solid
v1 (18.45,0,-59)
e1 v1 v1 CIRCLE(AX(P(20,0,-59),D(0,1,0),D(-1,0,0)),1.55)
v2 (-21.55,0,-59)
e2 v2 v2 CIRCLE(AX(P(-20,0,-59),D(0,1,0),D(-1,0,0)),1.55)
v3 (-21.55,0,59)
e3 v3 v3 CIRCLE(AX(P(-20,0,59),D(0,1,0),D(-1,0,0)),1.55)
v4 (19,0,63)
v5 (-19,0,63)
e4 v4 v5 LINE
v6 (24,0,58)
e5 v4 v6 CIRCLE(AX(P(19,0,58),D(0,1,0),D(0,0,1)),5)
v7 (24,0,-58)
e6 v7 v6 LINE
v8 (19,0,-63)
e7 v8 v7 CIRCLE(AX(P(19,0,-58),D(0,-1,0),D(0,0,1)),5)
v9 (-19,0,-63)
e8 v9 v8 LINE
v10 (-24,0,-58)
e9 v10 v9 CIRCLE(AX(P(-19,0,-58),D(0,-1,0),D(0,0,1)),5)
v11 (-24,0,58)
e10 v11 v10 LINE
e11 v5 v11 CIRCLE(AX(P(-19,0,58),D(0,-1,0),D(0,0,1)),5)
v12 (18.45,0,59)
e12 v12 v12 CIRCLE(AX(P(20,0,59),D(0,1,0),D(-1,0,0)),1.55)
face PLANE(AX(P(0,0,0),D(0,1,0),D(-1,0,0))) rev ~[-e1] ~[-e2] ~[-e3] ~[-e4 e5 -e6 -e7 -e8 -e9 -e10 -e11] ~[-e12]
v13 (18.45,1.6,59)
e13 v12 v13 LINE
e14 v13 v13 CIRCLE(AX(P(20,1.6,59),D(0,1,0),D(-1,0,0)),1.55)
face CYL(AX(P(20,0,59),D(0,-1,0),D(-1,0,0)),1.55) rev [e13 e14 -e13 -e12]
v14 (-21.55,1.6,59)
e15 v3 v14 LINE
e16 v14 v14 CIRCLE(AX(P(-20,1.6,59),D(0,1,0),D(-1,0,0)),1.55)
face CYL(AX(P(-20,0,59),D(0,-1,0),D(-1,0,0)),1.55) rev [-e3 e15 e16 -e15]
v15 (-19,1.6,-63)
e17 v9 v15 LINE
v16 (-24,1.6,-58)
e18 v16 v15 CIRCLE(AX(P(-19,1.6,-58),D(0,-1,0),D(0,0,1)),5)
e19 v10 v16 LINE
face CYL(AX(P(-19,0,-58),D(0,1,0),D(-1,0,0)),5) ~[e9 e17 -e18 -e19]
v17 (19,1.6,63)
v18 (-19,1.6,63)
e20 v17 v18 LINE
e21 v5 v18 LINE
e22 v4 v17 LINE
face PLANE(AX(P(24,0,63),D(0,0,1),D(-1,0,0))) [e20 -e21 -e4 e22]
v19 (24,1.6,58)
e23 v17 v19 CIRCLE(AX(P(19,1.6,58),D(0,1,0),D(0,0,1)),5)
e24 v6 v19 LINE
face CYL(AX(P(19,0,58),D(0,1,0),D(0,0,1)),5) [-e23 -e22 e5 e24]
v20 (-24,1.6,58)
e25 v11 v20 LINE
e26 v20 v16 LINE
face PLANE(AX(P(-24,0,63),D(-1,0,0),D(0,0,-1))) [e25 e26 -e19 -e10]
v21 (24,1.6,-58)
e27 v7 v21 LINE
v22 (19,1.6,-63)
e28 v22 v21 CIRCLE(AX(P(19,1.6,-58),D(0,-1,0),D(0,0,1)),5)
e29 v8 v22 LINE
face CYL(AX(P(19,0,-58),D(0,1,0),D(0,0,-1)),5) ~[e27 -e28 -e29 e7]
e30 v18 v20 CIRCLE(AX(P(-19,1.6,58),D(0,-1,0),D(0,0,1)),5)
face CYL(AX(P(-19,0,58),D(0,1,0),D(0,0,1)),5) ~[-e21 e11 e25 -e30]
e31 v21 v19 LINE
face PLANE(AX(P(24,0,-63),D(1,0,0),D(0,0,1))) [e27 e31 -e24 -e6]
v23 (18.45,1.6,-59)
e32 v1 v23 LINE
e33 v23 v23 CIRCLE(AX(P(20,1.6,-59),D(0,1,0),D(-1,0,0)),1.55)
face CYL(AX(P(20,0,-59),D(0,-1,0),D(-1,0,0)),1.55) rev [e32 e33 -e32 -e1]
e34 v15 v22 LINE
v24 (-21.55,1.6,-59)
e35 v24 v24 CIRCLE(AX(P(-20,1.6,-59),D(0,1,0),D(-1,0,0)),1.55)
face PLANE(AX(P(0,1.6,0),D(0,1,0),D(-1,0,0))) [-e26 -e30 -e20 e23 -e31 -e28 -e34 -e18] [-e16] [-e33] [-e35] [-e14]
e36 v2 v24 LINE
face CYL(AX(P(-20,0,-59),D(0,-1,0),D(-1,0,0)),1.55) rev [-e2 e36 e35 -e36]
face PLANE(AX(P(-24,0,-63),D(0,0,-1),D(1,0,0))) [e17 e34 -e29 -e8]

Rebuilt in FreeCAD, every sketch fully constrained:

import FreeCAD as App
import Part
import Sketcher

V = App.Vector
Q = App.Units.Quantity


def edges_at(feature, points):
    """Names of the edges that pass closest to the given points."""
    edges = feature.Shape.Edges
    near = lambda p: min(range(len(edges)), key=lambda i: edges[i].distToShape(Part.Vertex(*p))[0])
    return sorted({f"Edge{near(p) + 1}" for p in points})

doc = App.newDocument("Part")
body = doc.addObject("PartDesign::Body", "Body")

sketch1 = doc.addObject("Sketcher::SketchObject", "Sketch")
body.addObject(sketch1)
sketch1.AttachmentSupport = (doc.XZ_Plane, [""])
sketch1.MapMode = "FlatFace"
sketch1.addGeometry(Part.LineSegment(V(-24, 63, 0), V(24, 63, 0)), False)
sketch1.addGeometry(Part.LineSegment(V(24, 63, 0), V(24, -63, 0)), False)
sketch1.addGeometry(Part.LineSegment(V(24, -63, 0), V(-24, -63, 0)), False)
sketch1.addGeometry(Part.LineSegment(V(-24, -63, 0), V(-24, 63, 0)), False)
sketch1.addGeometry(Part.Circle(V(20, -59, 0), V(0, 0, 1), 1.6), False)
sketch1.addGeometry(Part.Circle(V(-20, -59, 0), V(0, 0, 1), 1.6), False)
sketch1.addGeometry(Part.Circle(V(20, 59, 0), V(0, 0, 1), 1.6), False)
sketch1.addGeometry(Part.Circle(V(-20, 59, 0), V(0, 0, 1), 1.6), False)
sketch1.addConstraint(Sketcher.Constraint("Coincident", 0, 2, 1, 1))
sketch1.addConstraint(Sketcher.Constraint("Coincident", 1, 2, 2, 1))
sketch1.addConstraint(Sketcher.Constraint("Coincident", 2, 2, 3, 1))
sketch1.addConstraint(Sketcher.Constraint("Coincident", 3, 2, 0, 1))
sketch1.addConstraint(Sketcher.Constraint("Horizontal", 0))
sketch1.addConstraint(Sketcher.Constraint("Vertical", 1))
sketch1.addConstraint(Sketcher.Constraint("Horizontal", 2))
sketch1.addConstraint(Sketcher.Constraint("Vertical", 3))
sketch1.addConstraint(Sketcher.Constraint("Equal", 4, 5))
sketch1.addConstraint(Sketcher.Constraint("Equal", 5, 6))
sketch1.addConstraint(Sketcher.Constraint("Equal", 6, 7))
sketch1.addConstraint(Sketcher.Constraint("Symmetric", 5, 3, 6, 3, -1, 1))
sketch1.addConstraint(Sketcher.Constraint("Symmetric", 4, 3, 7, 3, -1, 1))
sketch1.addConstraint(Sketcher.Constraint("Symmetric", 0, 2, 2, 2, -1, 1))
sketch1.addConstraint(Sketcher.Constraint("Symmetric", 4, 3, 5, 3, -2))
sketch1.addConstraint(Sketcher.Constraint("Diameter", 4, Q("3.1 mm")))
sketch1.addConstraint(Sketcher.Constraint("DistanceX", 0, 1, 0, 2, Q("48 mm")))
sketch1.addConstraint(Sketcher.Constraint("DistanceY", 1, 2, 1, 1, Q("126 mm")))
sketch1.addConstraint(Sketcher.Constraint("DistanceX", 6, 3, 0, 2, Q("4 mm")))
sketch1.addConstraint(Sketcher.Constraint("DistanceY", 6, 3, 0, 2, Q("4 mm")))
pad1 = doc.addObject("PartDesign::Pad", "Pad")
body.addObject(pad1)
pad1.Profile = sketch1
pad1.Length = 1.6
pad1.Reversed = True
doc.recompute()

fillet = doc.addObject("PartDesign::Fillet", "Fillet")
body.addObject(fillet)
fillet.Base = (pad1, edges_at(pad1, [
    (24, 0.8, -63),
    (-24, 0.8, -63),
    (24, 0.8, 63),
    (-24, 0.8, 63),
]))
fillet.Radius = 5

doc.recompute()
